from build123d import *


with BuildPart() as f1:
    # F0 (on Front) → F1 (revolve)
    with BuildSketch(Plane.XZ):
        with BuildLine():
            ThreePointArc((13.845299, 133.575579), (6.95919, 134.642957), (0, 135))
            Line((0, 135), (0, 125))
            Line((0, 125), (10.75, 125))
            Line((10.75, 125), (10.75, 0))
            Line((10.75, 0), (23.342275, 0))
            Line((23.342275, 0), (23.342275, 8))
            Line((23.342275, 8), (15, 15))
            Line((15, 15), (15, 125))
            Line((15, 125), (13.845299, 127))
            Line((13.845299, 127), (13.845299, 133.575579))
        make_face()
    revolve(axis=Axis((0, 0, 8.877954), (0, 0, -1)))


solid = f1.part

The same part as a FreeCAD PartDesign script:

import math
import FreeCAD as App
import Part
import Sketcher
Q = App.Units.Quantity

doc = App.newDocument("Part")
body = doc.addObject("PartDesign::Body", "Body")

# Sketch on XZ plane
sketch1 = body.newObject("Sketcher::SketchObject", "Sketch")
sketch1.AttachmentSupport = (doc.getObject("XZ_Plane"), [""])
sketch1.MapMode = "FlatFace"
sketch1.addGeometry(Part.ArcOfCircle(Part.Circle(App.Vector(-0.000007, 66.999924, 0), App.Vector(0, 0, 1), 68.000076), math.radians(78.252021), math.radians(89.999994)), False)
sketch1.addGeometry(Part.LineSegment(App.Vector(0, 135, 0), App.Vector(0, 125, 0)), False)
sketch1.addGeometry(Part.LineSegment(App.Vector(0, 125, 0), App.Vector(10.75, 125, 0)), False)
sketch1.addGeometry(Part.LineSegment(App.Vector(10.75, 125, 0), App.Vector(10.75, 0, 0)), False)
sketch1.addGeometry(Part.LineSegment(App.Vector(10.75, 0, 0), App.Vector(23.342275, 0, 0)), False)
sketch1.addGeometry(Part.LineSegment(App.Vector(23.342275, 0, 0), App.Vector(23.342275, 8, 0)), False)
sketch1.addGeometry(Part.LineSegment(App.Vector(23.342275, 8, 0), App.Vector(15, 15, 0)), False)
sketch1.addGeometry(Part.LineSegment(App.Vector(15, 15, 0), App.Vector(15, 125, 0)), False)
sketch1.addGeometry(Part.LineSegment(App.Vector(15, 125, 0), App.Vector(13.845299, 127, 0)), False)
sketch1.addGeometry(Part.LineSegment(App.Vector(13.845299, 127, 0), App.Vector(13.845299, 133.575579, 0)), False)
sketch1.addConstraint(Sketcher.Constraint("Coincident", 0, 2, 1, 1))
sketch1.addConstraint(Sketcher.Constraint("Coincident", 1, 2, 2, 1))
sketch1.addConstraint(Sketcher.Constraint("Coincident", 2, 2, 3, 1))
sketch1.addConstraint(Sketcher.Constraint("Coincident", 3, 2, 4, 1))
sketch1.addConstraint(Sketcher.Constraint("Coincident", 4, 2, 5, 1))
sketch1.addConstraint(Sketcher.Constraint("Coincident", 5, 2, 6, 1))
sketch1.addConstraint(Sketcher.Constraint("Coincident", 6, 2, 7, 1))
sketch1.addConstraint(Sketcher.Constraint("Coincident", 7, 2, 8, 1))
sketch1.addConstraint(Sketcher.Constraint("Coincident", 8, 2, 9, 1))
sketch1.addConstraint(Sketcher.Constraint("Coincident", 9, 2, 0, 1))
sketch1.addConstraint(Sketcher.Constraint("Vertical", 1))
sketch1.addConstraint(Sketcher.Constraint("Horizontal", 2))
sketch1.addConstraint(Sketcher.Constraint("Vertical", 3))
sketch1.addConstraint(Sketcher.Constraint("Horizontal", 4))
sketch1.addConstraint(Sketcher.Constraint("Vertical", 5))
sketch1.addConstraint(Sketcher.Constraint("Vertical", 7))
sketch1.addConstraint(Sketcher.Constraint("Vertical", 9))
sketch1.addConstraint(Sketcher.Constraint("PointOnObject", 0, 2, -2))
sketch1.addConstraint(Sketcher.Constraint("PointOnObject", 3, 2, -1))
sketch1.addConstraint(Sketcher.Constraint("Horizontal", 2, 2, 7, 2))
sketch1.addConstraint(Sketcher.Constraint("DistanceY", 1, 2, 1, 1, 10.0))
sketch1.addConstraint(Sketcher.Constraint("DistanceY", 3, 2, 3, 1, 125.0))
sketch1.addConstraint(Sketcher.Constraint("DistanceY", 5, 1, 5, 2, 8.0))
sketch1.addConstraint(Sketcher.Constraint("DistanceY", 7, 1, 7, 2, 110.0))
sketch1.addConstraint(Sketcher.Constraint("Angle", 6, Q("139.999999 deg")))
sketch1.addConstraint(Sketcher.Constraint("Angle", 8, Q("120.00001 deg")))
sketch1.addConstraint(Sketcher.Constraint("DistanceX", -1, 1, 6, 2, 15.0))
sketch1.addConstraint(Sketcher.Constraint("DistanceY", -1, 1, 8, 2, 127.0))
sketch1.addConstraint(Sketcher.Constraint("DistanceX", 2, 1, 2, 2, 10.75))
sketch1.addConstraint(Sketcher.Constraint("Radius", 0, 68.000076))
sketch1.addConstraint(Sketcher.Constraint("DistanceY", 9, 1, 9, 2, 6.575579))
revolution = body.newObject("PartDesign::Revolution", "Revolution")
revolution.Profile = sketch1
revolution.ReferenceAxis = (sketch1, ["V_Axis"])
revolution.Angle = 360

doc.recompute()
